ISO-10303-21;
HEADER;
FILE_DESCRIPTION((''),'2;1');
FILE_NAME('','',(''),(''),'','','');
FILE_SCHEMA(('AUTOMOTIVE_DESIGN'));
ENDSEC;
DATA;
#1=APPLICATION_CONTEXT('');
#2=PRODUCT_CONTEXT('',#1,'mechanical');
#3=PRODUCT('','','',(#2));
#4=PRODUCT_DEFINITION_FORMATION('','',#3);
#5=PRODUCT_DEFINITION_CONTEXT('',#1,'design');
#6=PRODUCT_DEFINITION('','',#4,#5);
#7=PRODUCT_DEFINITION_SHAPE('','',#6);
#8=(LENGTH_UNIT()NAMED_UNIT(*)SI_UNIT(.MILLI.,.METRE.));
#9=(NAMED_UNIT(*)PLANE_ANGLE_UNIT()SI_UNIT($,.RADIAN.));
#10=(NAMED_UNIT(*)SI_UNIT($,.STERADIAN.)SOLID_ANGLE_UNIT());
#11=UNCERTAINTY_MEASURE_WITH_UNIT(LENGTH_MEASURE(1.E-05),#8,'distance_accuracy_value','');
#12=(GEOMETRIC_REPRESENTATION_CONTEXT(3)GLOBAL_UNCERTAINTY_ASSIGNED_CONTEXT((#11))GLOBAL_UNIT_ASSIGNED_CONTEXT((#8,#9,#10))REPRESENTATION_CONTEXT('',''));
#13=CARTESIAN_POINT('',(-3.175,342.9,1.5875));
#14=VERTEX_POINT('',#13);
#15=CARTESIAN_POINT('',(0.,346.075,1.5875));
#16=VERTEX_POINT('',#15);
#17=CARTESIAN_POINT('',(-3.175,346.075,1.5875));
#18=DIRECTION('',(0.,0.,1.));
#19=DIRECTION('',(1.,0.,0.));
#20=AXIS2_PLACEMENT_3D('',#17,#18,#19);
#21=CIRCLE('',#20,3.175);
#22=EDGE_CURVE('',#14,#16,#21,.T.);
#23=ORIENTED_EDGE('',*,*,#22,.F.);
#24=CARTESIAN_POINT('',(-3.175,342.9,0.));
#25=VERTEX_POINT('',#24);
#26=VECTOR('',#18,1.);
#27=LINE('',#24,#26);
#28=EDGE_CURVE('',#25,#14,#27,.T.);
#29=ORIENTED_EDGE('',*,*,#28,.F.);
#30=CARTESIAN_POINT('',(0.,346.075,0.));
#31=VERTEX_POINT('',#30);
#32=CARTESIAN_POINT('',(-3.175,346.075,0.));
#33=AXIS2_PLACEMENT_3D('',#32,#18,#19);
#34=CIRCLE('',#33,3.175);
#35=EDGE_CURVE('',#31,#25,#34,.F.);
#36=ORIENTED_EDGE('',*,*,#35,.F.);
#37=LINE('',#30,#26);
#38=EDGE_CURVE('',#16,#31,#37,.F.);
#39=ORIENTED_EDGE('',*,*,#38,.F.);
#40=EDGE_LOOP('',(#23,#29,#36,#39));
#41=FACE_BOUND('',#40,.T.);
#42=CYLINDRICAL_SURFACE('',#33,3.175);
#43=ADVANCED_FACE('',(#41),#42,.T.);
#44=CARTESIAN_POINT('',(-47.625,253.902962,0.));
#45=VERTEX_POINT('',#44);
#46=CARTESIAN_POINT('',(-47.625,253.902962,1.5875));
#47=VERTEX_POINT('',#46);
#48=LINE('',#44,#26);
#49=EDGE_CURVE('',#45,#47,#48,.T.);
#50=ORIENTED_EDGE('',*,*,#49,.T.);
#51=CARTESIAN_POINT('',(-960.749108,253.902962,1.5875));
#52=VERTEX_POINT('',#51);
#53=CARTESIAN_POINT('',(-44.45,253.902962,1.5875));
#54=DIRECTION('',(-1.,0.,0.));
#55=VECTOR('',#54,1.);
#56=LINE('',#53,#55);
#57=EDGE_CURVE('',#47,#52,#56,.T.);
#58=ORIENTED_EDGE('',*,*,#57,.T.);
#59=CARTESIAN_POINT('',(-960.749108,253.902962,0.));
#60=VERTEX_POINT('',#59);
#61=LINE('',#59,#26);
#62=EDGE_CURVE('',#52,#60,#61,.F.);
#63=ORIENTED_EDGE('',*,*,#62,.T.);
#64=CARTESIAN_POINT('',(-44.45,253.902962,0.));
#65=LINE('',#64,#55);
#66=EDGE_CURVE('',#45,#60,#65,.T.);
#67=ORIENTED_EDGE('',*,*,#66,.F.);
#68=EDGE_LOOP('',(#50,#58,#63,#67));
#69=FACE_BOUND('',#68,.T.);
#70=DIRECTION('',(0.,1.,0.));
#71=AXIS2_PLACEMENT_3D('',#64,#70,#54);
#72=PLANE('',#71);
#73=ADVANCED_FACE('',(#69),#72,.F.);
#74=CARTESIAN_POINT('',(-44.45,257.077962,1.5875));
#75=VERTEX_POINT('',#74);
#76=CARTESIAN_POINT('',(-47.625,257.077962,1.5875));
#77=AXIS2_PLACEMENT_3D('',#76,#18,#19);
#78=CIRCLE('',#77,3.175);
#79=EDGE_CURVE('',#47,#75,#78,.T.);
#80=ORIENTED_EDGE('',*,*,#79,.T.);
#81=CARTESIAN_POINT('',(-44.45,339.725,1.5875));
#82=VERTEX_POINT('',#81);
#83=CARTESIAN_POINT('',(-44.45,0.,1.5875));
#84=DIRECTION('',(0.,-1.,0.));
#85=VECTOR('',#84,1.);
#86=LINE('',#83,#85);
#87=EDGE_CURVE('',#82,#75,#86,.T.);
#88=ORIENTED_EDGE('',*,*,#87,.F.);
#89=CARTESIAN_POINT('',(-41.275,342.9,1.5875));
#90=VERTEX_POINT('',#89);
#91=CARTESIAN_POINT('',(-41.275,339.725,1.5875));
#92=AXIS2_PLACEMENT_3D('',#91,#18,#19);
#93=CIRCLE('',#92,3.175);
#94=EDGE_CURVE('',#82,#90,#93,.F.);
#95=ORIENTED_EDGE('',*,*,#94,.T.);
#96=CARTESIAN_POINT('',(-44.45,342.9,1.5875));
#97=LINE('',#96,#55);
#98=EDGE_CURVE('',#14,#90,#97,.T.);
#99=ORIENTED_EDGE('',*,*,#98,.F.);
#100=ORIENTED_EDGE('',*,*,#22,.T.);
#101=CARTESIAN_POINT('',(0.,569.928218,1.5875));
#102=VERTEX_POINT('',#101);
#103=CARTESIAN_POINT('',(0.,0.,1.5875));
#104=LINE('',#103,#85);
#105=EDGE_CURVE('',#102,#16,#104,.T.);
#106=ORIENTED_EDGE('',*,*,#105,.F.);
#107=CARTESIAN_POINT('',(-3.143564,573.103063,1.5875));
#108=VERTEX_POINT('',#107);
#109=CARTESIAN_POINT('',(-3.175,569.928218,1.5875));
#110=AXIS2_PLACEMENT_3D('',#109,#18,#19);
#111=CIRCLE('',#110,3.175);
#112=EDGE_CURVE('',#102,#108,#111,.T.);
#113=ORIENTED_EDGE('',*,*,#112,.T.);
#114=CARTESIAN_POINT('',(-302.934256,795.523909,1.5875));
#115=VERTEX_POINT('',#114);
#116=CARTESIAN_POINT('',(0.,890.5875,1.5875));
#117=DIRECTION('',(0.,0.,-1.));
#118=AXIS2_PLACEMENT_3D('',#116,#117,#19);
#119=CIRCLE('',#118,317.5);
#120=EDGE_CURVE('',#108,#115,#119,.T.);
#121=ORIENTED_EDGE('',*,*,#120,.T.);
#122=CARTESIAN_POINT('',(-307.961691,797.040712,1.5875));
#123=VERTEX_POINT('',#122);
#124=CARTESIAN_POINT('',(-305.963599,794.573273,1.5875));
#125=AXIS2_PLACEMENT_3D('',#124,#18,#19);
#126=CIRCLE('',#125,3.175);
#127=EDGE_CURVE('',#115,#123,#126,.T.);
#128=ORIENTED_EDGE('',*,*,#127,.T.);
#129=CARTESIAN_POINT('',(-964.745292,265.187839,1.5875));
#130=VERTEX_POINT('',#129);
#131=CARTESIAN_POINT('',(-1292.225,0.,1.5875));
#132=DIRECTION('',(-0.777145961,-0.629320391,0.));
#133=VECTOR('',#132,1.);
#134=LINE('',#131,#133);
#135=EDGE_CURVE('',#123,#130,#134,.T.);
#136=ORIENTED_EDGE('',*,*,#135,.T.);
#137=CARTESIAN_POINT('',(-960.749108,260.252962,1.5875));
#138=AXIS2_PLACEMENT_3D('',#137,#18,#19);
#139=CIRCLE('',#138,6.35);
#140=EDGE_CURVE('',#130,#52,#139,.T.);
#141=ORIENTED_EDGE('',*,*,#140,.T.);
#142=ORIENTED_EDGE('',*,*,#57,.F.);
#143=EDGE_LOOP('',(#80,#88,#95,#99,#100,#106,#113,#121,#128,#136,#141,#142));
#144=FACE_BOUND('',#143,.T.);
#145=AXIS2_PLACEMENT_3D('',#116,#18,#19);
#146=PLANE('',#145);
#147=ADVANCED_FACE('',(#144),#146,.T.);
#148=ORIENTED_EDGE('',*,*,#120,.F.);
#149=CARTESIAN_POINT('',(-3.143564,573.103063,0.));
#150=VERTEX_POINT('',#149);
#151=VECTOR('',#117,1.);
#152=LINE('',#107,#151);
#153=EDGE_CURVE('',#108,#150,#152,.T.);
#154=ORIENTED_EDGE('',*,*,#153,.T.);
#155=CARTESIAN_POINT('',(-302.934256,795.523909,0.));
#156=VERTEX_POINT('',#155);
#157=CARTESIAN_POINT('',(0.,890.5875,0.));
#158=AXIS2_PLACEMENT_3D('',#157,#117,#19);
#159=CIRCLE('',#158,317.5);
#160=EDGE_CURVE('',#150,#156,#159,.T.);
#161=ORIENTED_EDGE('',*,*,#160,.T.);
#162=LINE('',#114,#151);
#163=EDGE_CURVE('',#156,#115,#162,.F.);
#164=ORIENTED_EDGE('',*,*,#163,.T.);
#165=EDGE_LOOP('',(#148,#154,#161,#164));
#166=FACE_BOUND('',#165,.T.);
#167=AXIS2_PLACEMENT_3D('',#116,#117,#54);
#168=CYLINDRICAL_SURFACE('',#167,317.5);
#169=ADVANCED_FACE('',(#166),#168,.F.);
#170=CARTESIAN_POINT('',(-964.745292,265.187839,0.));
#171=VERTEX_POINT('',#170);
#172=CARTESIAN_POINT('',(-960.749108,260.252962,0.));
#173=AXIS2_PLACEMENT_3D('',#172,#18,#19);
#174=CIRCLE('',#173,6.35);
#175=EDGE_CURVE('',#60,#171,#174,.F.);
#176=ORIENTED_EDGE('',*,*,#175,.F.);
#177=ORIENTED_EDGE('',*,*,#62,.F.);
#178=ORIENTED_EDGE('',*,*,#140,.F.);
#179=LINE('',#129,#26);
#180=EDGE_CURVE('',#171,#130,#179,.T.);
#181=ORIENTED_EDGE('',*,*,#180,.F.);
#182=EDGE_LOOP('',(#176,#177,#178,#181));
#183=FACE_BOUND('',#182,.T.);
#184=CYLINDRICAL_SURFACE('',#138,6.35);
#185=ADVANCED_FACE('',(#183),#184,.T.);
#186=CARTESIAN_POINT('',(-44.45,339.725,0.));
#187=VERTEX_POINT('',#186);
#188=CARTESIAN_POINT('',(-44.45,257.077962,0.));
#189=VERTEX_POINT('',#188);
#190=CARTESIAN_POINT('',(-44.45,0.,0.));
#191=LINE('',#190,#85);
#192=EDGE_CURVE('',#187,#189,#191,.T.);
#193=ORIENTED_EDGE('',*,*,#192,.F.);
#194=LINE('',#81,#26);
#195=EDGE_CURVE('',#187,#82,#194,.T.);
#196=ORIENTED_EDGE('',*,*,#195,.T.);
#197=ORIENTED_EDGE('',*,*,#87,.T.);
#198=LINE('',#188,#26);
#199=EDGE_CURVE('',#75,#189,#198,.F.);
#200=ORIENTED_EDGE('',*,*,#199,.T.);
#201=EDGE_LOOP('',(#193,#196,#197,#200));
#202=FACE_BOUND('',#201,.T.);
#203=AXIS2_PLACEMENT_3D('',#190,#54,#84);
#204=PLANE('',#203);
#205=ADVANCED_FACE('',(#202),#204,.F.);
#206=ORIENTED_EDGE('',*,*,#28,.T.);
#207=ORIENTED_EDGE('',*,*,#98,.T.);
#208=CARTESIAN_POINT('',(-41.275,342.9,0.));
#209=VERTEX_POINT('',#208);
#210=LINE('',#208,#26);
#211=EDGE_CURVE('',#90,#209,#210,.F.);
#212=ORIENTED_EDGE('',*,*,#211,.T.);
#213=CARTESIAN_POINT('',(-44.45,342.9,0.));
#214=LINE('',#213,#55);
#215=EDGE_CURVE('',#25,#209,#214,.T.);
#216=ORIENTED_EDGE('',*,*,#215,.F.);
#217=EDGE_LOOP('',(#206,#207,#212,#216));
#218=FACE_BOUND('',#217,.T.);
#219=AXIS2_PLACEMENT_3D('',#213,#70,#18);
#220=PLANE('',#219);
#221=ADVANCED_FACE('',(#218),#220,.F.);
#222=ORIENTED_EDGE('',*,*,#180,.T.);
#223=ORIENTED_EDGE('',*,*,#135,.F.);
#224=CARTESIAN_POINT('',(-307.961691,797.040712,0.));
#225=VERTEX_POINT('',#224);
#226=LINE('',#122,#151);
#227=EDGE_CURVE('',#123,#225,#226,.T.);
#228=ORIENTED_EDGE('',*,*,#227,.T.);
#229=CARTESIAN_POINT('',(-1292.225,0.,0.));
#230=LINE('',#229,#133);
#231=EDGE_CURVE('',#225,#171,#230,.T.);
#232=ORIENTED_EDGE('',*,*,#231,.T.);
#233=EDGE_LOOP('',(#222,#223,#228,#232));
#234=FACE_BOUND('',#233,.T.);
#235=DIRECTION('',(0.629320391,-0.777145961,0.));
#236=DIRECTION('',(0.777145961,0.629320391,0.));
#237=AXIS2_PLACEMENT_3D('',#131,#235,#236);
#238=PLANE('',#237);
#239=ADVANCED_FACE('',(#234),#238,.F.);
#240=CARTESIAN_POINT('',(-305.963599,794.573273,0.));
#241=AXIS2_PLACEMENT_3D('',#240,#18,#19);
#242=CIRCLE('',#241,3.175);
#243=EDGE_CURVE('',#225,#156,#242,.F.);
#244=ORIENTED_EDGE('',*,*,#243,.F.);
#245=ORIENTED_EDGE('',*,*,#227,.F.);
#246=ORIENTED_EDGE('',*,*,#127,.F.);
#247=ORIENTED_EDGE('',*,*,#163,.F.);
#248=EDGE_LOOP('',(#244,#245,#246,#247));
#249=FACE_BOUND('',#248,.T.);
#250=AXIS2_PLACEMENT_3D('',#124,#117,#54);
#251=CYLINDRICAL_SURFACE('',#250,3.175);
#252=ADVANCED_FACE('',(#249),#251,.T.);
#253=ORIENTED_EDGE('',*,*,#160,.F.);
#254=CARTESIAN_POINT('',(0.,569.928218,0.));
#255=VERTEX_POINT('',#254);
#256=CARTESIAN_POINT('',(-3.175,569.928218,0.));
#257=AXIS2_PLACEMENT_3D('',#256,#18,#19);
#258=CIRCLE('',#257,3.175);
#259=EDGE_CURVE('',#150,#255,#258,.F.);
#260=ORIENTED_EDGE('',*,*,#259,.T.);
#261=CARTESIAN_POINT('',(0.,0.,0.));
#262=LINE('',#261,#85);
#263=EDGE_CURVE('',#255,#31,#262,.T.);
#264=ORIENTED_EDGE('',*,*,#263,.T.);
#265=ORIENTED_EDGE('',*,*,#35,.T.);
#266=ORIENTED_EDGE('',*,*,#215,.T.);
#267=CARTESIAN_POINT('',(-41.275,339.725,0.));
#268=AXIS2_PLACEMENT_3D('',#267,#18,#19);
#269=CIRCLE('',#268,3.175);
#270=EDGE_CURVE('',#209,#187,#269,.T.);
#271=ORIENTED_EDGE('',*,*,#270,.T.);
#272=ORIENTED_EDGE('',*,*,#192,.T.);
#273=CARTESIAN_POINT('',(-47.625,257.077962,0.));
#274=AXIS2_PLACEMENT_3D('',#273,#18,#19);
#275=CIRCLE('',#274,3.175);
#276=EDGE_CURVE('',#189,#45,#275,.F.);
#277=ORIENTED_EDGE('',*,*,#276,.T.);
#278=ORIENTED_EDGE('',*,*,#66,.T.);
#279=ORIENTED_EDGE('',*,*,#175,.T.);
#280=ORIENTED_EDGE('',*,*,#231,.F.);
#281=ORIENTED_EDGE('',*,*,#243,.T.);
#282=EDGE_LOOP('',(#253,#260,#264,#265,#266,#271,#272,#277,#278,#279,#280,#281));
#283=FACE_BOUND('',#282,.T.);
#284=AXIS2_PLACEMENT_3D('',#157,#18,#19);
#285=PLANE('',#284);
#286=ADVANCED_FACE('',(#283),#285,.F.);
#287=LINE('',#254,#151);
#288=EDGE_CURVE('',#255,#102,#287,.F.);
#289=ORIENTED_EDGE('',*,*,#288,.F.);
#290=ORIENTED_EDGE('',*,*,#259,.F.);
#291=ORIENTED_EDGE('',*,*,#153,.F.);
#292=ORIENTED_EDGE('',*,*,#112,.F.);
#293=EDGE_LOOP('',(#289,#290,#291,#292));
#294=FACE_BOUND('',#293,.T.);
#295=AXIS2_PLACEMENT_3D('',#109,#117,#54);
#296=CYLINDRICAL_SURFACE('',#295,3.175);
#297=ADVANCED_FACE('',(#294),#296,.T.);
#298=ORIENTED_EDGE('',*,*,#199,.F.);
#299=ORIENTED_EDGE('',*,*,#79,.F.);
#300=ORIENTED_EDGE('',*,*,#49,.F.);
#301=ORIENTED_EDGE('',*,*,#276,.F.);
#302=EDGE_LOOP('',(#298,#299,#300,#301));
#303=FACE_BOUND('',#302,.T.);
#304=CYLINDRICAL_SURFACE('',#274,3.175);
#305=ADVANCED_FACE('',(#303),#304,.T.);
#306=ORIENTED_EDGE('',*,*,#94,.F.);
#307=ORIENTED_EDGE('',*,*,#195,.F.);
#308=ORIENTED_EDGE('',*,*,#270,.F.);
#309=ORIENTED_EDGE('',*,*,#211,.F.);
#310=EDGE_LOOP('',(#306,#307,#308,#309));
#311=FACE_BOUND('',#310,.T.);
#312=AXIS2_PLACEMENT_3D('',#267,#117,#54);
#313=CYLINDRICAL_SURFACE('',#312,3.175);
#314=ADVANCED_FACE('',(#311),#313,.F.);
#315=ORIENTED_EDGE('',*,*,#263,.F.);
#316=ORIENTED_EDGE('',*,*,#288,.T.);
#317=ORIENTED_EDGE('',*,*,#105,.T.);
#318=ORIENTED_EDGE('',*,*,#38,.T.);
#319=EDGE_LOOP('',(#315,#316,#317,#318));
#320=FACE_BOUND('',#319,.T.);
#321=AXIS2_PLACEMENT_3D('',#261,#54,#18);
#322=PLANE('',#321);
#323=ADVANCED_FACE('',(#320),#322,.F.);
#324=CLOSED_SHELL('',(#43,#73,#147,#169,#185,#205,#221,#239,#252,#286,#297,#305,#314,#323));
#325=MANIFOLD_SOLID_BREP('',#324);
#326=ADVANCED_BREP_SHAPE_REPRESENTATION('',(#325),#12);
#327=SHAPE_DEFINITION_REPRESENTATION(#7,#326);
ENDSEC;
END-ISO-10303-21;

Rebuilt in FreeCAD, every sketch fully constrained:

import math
import FreeCAD as App
import Part
import Sketcher
from FreeCAD import Vector
Q = App.Units.Quantity


def edges_at(feature, points):
    """Names of the edges that pass closest to the given points."""
    edges = feature.Shape.Edges
    near = lambda p: min(range(len(edges)), key=lambda i: edges[i].distToShape(Part.Vertex(*p))[0])
    return sorted({f"Edge{near(p) + 1}" for p in points})


def add_polygon(sketch, points):
    """Adds a closed chain of lines whose ends are joined by coincident constraints."""
    first, n = sketch.GeometryCount, len(points)
    for a, b in zip(points, points[1:] + points[:1]):
        sketch.addGeometry(Part.LineSegment(App.Vector(*a, 0), App.Vector(*b, 0)), False)
    for i in range(n):
        sketch.addConstraint(Sketcher.Constraint("Coincident", first + i, 2, first + (i + 1) % n, 1))

doc = App.newDocument("Part")
params = doc.addObject("Spreadsheet::Sheet", "Params")
for row, (alias, value) in enumerate([
    ("sketch1_radius", "12.5 in"),
    ("sketch1_width", "101.75 in"),
    ("pad1_length", "0.0625 in"),
    ("sketch2_width", "3.5 in"),
    ("sketch2_height", "13.5 in"),
    ("sketch3_width", "50.875 in"),
    ("sketch4_width", "49.125 in"),
    ("fillet_radius", "0.125 in"),
    ("fillet2_radius", "0.25 in"),
], start=1):
    params.set(f"A{row}", alias)
    params.set(f"B{row}", "=" + value)
    params.setAlias(f"B{row}", alias)

body = doc.addObject("PartDesign::Body", "Body")

# Sketch on XY plane
sketch1 = body.newObject("Sketcher::SketchObject", "Sketch")
sketch1.AttachmentSupport = (doc.getObject("XY_Plane"), [""])
sketch1.MapMode = "FlatFace"
sketch1.addGeometry(Part.LineSegment(Vector(-1292, 0, 0), Vector(1292, 0, 0)), False)
sketch1.addGeometry(Part.LineSegment(Vector(1292, 0, 0), Vector(304, 800, 0)), False)
sketch1.addGeometry(Part.ArcOfCircle(Part.Circle(Vector(0, 891, 0), Vector(0, 0, 1), 318), math.radians(-163), math.radians(-17)), False)
sketch1.addGeometry(Part.LineSegment(Vector(-304, 800, 0), Vector(-1292, 0, 0)), False)
sketch1.addConstraint(Sketcher.Constraint("Coincident", 0, 2, 1, 1))
sketch1.addConstraint(Sketcher.Constraint("Coincident", 1, 2, 2, 2))
sketch1.addConstraint(Sketcher.Constraint("Coincident", 2, 1, 3, 1))
sketch1.addConstraint(Sketcher.Constraint("Coincident", 3, 2, 0, 1))
sketch1.addConstraint(Sketcher.Constraint("Horizontal", 0))
sketch1.addConstraint(Sketcher.Constraint("Symmetric", 0, 2, 3, 2, -1, 1))
sketch1.addConstraint(Sketcher.Constraint("Symmetric", 1, 2, 2, 1, -2))
sketch1.addConstraint(Sketcher.Constraint("Radius", 2, Q("12.5 in")))
sketch1.addConstraint(Sketcher.Constraint("Angle", 1, Q("141 deg")))
sketch1.addConstraint(Sketcher.Constraint("DistanceX", 0, 1, 0, 2, Q("101.75 in")))
sketch1.addConstraint(Sketcher.Constraint("DistanceY", -1, 1, 2, 3, Q("35.0625 in")))
sketch1.setExpression("Constraints[7]", "Params.sketch1_radius")
sketch1.setExpression("Constraints[9]", "Params.sketch1_width")
pad1 = body.newObject("PartDesign::Pad", "Pad")
pad1.Profile = sketch1
pad1.setExpression("Length", "Params.pad1_length")

# Sketch on XY plane
sketch2 = body.newObject("Sketcher::SketchObject", "Sketch001")
sketch2.AttachmentSupport = (doc.getObject("XY_Plane"), [""])
sketch2.MapMode = "FlatFace"
sketch2.AttachmentOffset = App.Placement(Vector(0, 0, 0.0625 * 25.4), App.Rotation())
add_polygon(sketch2, [(-44, 343), (-44, 0), (44, 0), (44, 343)])  # lines 0-3
sketch2.addConstraint(Sketcher.Constraint("Vertical", 0))
sketch2.addConstraint(Sketcher.Constraint("Horizontal", 1))
sketch2.addConstraint(Sketcher.Constraint("Vertical", 2))
sketch2.addConstraint(Sketcher.Constraint("Horizontal", 3))
sketch2.addConstraint(Sketcher.Constraint("Symmetric", 0, 2, 1, 2, -1, 1))
sketch2.addConstraint(Sketcher.Constraint("DistanceX", 1, 1, 1, 2, Q("3.5 in")))
sketch2.addConstraint(Sketcher.Constraint("DistanceY", 0, 2, 0, 1, Q("13.5 in")))
sketch2.setExpression("Constraints[9]", "Params.sketch2_width")
sketch2.setExpression("Constraints[10]", "Params.sketch2_height")
pocket1 = body.newObject("PartDesign::Pocket", "Pocket")
pocket1.Profile = sketch2
pocket1.Type = "ThroughAll"

# Sketch on XY plane
sketch3 = body.newObject("Sketcher::SketchObject", "Sketch002")
sketch3.AttachmentSupport = (doc.getObject("XY_Plane"), [""])
sketch3.MapMode = "FlatFace"
sketch3.AttachmentOffset = App.Placement(Vector(0, 0, 0.0625 * 25.4), App.Rotation())
add_polygon(sketch3, [(0, 800), (0, 0), (1292, 0), (1292, 800)])  # lines 0-3
sketch3.addConstraint(Sketcher.Constraint("Vertical", 0))
sketch3.addConstraint(Sketcher.Constraint("Horizontal", 1))
sketch3.addConstraint(Sketcher.Constraint("Vertical", 2))
sketch3.addConstraint(Sketcher.Constraint("Horizontal", 3))
sketch3.addConstraint(Sketcher.Constraint("Coincident", 0, 2, -1, 1))
sketch3.addConstraint(Sketcher.Constraint("DistanceX", 1, 1, 1, 2, Q("50.875 in")))
sketch3.addConstraint(Sketcher.Constraint("DistanceY", 0, 2, 0, 1, 800.002962))
sketch3.setExpression("Constraints[9]", "Params.sketch3_width")
pocket2 = body.newObject("PartDesign::Pocket", "Pocket001")
pocket2.Profile = sketch3
pocket2.Type = "ThroughAll"

# Sketch on XY plane
sketch4 = body.newObject("Sketcher::SketchObject", "Sketch003")
sketch4.AttachmentSupport = (doc.getObject("XY_Plane"), [""])
sketch4.MapMode = "FlatFace"
sketch4.AttachmentOffset = App.Placement(Vector(0, 0, 0.0625 * 25.4), App.Rotation())
add_polygon(sketch4, [(-44, 254), (-979, 254), (-1292, 0), (-44, 0)])  # lines 0-3
sketch4.addConstraint(Sketcher.Constraint("Horizontal", 0))
sketch4.addConstraint(Sketcher.Constraint("Horizontal", 2))
sketch4.addConstraint(Sketcher.Constraint("Vertical", 3))
sketch4.addConstraint(Sketcher.Constraint("PointOnObject", 1, 2, -1))
sketch4.addConstraint(Sketcher.Constraint("Angle", 1, Q("-141 deg")))
sketch4.addConstraint(Sketcher.Constraint("DistanceX", 2, 1, 2, 2, Q("49.125 in")))
sketch4.addConstraint(Sketcher.Constraint("DistanceX", 2, 2, -1, 1, Q("1.75 in")))
sketch4.addConstraint(Sketcher.Constraint("Distance", 1, 403.4558))
sketch4.setExpression("Constraints[9]", "Params.sketch4_width")
pocket3 = body.newObject("PartDesign::Pocket", "Pocket002")
pocket3.Profile = sketch4
pocket3.Type = "ThroughAll"
doc.recompute()

fillet = body.newObject("PartDesign::Fillet", "Fillet")
fillet.Base = (pocket3, edges_at(pocket3, [
    (-44.45, 342.9, 0.794),
    (0, 342.9, 0.794),
    (0, 573.087, 0.794),
    (-44.45, 253.903, 0.794),
    (-304.304, 800.003, 0.794),
]))
fillet.setExpression("Radius", "Params.fillet_radius")
doc.recompute()

fillet2 = body.newObject("PartDesign::Fillet", "Fillet001")
fillet2.Base = (fillet, edges_at(fillet, [(-978.681, 253.903, 0.794)]))
fillet2.setExpression("Radius", "Params.fillet2_radius")

doc.recompute()
